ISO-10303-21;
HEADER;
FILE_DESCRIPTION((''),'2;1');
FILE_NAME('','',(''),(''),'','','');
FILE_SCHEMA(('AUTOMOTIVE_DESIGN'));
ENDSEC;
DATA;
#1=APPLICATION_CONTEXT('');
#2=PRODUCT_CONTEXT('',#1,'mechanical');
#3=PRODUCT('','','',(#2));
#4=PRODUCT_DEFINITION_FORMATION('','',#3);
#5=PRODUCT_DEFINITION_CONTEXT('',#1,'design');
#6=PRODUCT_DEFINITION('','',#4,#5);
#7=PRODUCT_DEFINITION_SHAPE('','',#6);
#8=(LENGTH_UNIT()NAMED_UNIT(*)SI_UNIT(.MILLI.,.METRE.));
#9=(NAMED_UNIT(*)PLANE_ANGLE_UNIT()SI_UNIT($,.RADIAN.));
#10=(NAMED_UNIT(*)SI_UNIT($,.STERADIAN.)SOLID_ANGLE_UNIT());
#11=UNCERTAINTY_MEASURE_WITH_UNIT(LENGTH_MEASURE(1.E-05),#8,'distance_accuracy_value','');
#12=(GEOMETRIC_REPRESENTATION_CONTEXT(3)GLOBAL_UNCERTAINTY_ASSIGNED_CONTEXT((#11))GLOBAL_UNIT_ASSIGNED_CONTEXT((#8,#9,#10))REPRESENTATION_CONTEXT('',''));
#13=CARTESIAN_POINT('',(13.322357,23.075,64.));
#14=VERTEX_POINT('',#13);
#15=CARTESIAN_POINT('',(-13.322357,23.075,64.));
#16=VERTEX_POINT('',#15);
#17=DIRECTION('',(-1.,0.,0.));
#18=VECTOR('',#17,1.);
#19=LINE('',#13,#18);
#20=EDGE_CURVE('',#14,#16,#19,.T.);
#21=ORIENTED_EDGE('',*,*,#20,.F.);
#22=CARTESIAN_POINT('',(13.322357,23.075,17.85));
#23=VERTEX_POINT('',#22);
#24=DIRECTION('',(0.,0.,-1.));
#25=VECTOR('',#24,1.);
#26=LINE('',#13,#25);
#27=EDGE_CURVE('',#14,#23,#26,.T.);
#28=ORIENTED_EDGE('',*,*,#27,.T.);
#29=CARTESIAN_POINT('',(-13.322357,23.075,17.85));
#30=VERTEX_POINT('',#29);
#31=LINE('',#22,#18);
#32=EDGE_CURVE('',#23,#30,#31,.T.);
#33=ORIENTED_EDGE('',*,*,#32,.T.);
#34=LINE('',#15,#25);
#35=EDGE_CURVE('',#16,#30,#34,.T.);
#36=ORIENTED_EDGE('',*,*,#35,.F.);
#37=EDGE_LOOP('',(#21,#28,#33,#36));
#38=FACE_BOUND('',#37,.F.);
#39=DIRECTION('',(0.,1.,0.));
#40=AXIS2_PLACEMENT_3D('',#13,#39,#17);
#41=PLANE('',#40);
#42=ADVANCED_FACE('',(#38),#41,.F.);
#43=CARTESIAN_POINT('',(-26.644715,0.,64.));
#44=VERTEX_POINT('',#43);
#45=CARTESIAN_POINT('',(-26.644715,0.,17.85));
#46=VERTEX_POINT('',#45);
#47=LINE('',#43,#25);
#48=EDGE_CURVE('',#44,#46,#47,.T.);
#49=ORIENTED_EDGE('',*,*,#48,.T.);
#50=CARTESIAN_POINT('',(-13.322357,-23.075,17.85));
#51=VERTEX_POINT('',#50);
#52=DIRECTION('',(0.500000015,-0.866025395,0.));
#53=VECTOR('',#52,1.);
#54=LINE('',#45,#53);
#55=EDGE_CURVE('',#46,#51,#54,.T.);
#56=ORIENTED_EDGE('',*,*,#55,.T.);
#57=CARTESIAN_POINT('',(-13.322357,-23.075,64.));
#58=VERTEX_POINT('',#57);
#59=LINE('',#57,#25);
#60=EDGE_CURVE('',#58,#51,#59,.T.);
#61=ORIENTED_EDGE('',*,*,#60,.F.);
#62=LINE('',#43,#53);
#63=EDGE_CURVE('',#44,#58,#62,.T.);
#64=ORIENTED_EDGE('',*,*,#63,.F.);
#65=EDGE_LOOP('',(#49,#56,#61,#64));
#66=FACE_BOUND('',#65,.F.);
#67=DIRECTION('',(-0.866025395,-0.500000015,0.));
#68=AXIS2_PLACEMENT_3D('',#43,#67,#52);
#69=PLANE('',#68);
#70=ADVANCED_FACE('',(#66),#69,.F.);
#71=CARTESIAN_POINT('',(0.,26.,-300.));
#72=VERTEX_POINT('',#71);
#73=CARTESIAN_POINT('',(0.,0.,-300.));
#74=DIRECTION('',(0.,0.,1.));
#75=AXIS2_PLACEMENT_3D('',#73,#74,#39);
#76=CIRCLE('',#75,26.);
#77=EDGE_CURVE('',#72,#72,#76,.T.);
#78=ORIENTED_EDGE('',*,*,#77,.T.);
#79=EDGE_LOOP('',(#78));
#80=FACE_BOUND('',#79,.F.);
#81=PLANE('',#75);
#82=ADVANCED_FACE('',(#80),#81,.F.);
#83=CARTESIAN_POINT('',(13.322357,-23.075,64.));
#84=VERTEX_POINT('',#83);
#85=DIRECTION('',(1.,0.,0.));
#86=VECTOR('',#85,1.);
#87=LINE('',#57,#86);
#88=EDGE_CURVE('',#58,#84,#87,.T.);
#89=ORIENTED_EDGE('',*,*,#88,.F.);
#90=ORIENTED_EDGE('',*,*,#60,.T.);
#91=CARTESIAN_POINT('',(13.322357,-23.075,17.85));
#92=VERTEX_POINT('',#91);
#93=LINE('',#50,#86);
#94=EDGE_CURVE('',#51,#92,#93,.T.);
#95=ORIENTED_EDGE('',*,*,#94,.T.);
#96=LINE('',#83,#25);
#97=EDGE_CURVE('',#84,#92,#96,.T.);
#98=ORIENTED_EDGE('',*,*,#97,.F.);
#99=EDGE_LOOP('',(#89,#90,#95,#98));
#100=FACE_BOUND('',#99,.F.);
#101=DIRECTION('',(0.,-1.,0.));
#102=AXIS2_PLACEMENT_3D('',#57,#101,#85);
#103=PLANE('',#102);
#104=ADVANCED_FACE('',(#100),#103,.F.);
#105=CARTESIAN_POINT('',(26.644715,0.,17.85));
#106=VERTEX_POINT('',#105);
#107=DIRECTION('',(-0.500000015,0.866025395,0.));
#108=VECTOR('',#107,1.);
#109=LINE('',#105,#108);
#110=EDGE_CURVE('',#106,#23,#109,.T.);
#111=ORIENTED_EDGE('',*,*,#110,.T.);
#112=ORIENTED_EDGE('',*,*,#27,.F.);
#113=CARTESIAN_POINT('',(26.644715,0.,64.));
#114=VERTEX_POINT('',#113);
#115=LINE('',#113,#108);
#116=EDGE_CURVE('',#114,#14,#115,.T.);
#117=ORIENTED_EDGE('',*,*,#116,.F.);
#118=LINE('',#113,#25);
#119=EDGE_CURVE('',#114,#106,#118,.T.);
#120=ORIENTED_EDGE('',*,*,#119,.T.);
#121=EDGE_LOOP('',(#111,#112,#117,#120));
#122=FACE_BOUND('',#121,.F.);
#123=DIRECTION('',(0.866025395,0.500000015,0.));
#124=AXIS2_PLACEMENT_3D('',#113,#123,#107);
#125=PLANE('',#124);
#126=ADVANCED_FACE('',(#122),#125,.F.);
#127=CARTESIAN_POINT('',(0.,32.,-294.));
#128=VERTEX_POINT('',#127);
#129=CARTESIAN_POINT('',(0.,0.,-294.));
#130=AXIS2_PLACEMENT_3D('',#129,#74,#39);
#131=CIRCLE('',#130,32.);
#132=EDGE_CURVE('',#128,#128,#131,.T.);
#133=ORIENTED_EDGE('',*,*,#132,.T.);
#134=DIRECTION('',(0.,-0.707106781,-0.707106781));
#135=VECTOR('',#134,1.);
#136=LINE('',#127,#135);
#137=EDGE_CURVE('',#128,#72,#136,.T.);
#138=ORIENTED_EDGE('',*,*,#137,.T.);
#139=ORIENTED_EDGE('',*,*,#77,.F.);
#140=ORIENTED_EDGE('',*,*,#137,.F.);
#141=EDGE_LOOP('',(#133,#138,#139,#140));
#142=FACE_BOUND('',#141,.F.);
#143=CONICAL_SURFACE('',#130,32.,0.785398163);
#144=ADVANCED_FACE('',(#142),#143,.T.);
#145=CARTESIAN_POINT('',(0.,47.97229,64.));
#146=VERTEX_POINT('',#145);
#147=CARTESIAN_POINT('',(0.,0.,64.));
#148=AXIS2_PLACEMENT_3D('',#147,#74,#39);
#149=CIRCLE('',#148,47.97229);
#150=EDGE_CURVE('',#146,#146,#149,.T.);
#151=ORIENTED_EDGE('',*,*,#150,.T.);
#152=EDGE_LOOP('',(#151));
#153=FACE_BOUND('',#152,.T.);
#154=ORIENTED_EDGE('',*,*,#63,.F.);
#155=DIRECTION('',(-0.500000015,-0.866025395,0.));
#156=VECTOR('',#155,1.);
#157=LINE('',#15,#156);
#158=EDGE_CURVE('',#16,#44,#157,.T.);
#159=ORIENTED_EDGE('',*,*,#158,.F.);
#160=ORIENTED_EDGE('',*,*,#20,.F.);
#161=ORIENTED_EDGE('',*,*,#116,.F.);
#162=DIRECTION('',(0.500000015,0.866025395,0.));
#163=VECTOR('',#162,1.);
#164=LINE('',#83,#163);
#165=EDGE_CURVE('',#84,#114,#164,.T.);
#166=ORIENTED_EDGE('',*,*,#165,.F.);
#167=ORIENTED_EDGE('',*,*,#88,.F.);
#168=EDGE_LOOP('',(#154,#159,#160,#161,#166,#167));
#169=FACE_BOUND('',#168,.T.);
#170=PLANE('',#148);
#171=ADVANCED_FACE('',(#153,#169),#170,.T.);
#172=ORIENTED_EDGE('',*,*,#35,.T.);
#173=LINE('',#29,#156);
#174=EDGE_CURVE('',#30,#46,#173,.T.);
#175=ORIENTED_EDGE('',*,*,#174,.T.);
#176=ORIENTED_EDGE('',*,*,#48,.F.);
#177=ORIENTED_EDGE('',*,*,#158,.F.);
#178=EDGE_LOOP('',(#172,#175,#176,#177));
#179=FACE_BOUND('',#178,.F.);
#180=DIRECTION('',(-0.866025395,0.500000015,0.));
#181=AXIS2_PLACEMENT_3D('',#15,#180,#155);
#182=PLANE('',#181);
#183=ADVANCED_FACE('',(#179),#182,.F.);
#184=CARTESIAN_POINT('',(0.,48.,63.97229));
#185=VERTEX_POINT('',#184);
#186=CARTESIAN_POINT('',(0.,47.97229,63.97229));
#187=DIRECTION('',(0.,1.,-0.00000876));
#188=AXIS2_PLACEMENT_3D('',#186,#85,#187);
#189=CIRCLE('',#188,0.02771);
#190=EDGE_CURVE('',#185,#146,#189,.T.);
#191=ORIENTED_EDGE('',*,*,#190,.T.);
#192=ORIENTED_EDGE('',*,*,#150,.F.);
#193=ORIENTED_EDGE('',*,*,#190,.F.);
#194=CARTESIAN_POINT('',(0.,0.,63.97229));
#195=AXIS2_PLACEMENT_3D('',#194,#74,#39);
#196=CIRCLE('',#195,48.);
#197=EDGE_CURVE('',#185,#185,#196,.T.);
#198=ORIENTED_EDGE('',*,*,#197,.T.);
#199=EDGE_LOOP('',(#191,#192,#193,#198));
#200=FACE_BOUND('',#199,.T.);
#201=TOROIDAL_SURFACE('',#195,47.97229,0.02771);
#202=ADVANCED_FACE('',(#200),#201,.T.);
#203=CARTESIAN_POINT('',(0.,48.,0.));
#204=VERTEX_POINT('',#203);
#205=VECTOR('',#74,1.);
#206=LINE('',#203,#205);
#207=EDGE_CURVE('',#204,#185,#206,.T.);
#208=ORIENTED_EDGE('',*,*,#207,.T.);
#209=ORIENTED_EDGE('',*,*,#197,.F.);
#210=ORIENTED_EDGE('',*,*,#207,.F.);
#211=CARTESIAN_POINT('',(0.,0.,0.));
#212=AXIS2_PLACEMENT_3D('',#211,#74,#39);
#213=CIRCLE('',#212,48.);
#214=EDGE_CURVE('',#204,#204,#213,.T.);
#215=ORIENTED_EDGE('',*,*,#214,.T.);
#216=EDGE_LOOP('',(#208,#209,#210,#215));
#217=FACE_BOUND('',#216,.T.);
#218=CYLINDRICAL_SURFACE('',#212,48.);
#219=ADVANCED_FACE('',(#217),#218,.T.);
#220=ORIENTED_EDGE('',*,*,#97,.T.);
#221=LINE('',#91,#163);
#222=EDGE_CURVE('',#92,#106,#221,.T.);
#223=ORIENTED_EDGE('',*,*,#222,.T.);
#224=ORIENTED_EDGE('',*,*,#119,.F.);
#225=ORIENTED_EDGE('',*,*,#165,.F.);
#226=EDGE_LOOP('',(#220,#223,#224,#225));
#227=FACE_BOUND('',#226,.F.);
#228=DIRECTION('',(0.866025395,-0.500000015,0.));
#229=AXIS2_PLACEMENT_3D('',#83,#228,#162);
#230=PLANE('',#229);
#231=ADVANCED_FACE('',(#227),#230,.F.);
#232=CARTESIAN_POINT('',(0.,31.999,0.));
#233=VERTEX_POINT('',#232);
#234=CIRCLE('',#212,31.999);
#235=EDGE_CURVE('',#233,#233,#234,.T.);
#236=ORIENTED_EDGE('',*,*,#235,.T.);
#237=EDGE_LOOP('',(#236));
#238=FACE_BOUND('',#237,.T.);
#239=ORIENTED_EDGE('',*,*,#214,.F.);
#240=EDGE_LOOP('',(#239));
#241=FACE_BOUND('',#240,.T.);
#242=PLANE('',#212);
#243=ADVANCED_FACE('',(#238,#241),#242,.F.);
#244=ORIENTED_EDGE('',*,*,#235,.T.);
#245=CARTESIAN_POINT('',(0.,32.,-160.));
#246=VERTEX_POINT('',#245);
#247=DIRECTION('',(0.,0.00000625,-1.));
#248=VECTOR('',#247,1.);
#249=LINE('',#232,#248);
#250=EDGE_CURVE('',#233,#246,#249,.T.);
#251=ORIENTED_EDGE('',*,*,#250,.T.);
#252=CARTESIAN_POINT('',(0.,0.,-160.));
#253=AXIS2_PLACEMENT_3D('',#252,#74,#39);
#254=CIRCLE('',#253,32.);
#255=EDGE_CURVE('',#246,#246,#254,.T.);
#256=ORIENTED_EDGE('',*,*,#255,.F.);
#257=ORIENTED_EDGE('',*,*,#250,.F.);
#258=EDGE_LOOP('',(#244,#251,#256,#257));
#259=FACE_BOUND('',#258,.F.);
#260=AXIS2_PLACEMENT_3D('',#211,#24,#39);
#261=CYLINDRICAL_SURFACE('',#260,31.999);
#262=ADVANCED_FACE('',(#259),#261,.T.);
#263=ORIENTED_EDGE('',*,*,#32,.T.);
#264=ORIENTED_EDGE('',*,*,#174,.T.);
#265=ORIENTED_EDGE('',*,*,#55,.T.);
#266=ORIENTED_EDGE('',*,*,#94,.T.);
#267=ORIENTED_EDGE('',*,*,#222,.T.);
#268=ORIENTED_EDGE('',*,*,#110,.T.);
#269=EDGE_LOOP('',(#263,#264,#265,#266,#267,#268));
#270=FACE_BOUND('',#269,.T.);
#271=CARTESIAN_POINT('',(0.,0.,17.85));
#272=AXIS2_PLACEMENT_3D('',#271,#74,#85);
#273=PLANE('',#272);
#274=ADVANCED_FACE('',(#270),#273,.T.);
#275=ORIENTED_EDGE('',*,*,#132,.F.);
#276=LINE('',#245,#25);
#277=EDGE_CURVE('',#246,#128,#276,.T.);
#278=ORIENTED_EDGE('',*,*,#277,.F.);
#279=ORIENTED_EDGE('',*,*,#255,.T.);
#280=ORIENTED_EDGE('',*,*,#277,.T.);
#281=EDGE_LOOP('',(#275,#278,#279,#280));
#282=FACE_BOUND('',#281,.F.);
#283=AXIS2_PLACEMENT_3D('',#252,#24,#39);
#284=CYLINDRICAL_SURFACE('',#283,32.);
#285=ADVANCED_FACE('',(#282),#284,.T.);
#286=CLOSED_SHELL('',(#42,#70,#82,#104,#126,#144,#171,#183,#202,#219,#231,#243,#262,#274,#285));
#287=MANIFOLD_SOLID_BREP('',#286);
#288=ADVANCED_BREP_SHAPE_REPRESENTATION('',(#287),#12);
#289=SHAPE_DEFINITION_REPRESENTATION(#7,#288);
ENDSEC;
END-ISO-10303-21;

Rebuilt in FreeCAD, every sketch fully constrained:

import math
import FreeCAD as App
import Part
import Sketcher
Q = App.Units.Quantity


def add_polygon(sketch, points):
    """Adds a closed chain of lines whose ends are joined by coincident constraints."""
    first, n = sketch.GeometryCount, len(points)
    for a, b in zip(points, points[1:] + points[:1]):
        sketch.addGeometry(Part.LineSegment(App.Vector(*a, 0), App.Vector(*b, 0)), False)
    for i in range(n):
        sketch.addConstraint(Sketcher.Constraint("Coincident", first + i, 2, first + (i + 1) % n, 1))

doc = App.newDocument("Part")
body = doc.addObject("PartDesign::Body", "Body")

# Sketch on YZ plane
sketch1 = doc.addObject("Sketcher::SketchObject", "Sketch")
body.addObject(sketch1)
sketch1.AttachmentSupport = (doc.YZ_Plane, [""])
sketch1.MapMode = "FlatFace"
sketch1.addGeometry([
    Part.LineSegment(App.Vector(31.999, 0, 0), App.Vector(48, 0, 0)),  # 0
    Part.LineSegment(App.Vector(48, 0, 0), App.Vector(48, 63.97229, 0)),  # 1
    Part.ArcOfCircle(Part.Circle(App.Vector(47.97229, 63.97229, 0), App.Vector(0, 0, 1), 0.02771), math.radians(-0.000502), math.radians(90.000502)),  # 2
    Part.LineSegment(App.Vector(47.97229, 64, 0), App.Vector(0, 64, 0)),  # 3
    Part.LineSegment(App.Vector(0, 64, 0), App.Vector(0, -300, 0)),  # 4
    Part.LineSegment(App.Vector(0, -300, 0), App.Vector(26, -300, 0)),  # 5
    Part.LineSegment(App.Vector(26, -300, 0), App.Vector(32, -294, 0)),  # 6
    Part.LineSegment(App.Vector(32, -294, 0), App.Vector(32, -160, 0)),  # 7
    Part.LineSegment(App.Vector(32, -160, 0), App.Vector(31.999, 0, 0)),  # 8
], False)
sketch1.addConstraint([
    Sketcher.Constraint("Coincident", 0, 2, 1, 1),
    Sketcher.Constraint("Coincident", 1, 2, 2, 1),
    Sketcher.Constraint("Coincident", 2, 2, 3, 1),
    Sketcher.Constraint("Coincident", 3, 2, 4, 1),
    Sketcher.Constraint("Coincident", 4, 2, 5, 1),
    Sketcher.Constraint("Coincident", 5, 2, 6, 1),
    Sketcher.Constraint("Coincident", 6, 2, 7, 1),
    Sketcher.Constraint("Coincident", 7, 2, 8, 1),
    Sketcher.Constraint("Coincident", 8, 2, 0, 1),
    Sketcher.Constraint("Horizontal", 0),
    Sketcher.Constraint("Vertical", 1),
    Sketcher.Constraint("Horizontal", 3),
    Sketcher.Constraint("Vertical", 4),
    Sketcher.Constraint("Horizontal", 5),
    Sketcher.Constraint("Vertical", 7),
    Sketcher.Constraint("PointOnObject", 0, 2, -1),
    Sketcher.Constraint("PointOnObject", 3, 2, -2),
    Sketcher.Constraint("Horizontal", 2, 3, 1, 2),
    Sketcher.Constraint("DistanceX", 5, 1, 5, 2, 26.0),
    Sketcher.Constraint("DistanceY", 4, 2, 4, 1, 364.0),
    Sketcher.Constraint("DistanceY", 7, 1, 7, 2, 134.0),
    Sketcher.Constraint("Angle", 6, Q("45 deg")),
    Sketcher.Constraint("Distance", 8, 160.0),
    Sketcher.Constraint("DistanceX", -1, 1, 0, 2, 48.0),
    Sketcher.Constraint("DistanceY", -1, 1, 2, 2, 64.0),
    Sketcher.Constraint("DistanceX", 0, 1, 0, 2, 16.001),
    Sketcher.Constraint("Radius", 2, 0.02771),
    Sketcher.Constraint("DistanceX", 3, 2, 3, 1, 47.97229),
])
revolution = doc.addObject("PartDesign::Revolution", "Revolution")
body.addObject(revolution)
revolution.Profile = sketch1
revolution.ReferenceAxis = (sketch1, ["V_Axis"])
revolution.Angle = 360

# Sketch on XY plane
sketch2 = doc.addObject("Sketcher::SketchObject", "Sketch001")
body.addObject(sketch2)
sketch2.AttachmentSupport = (doc.XY_Plane, [""])
sketch2.MapMode = "FlatFace"
sketch2.AttachmentOffset = App.Placement(App.Vector(0, 0, 64), App.Rotation())
add_polygon(sketch2, [(26.644715, 0), (13.322357, 23.075), (-13.322357, 23.075), (-26.644715, 0), (-13.322357, -23.075), (13.322357, -23.075)])  # lines 0-5
sketch2.addConstraint([
    Sketcher.Constraint("Horizontal", 1),
    Sketcher.Constraint("Horizontal", 4),
    Sketcher.Constraint("Symmetric", 0, 2, 3, 2, -1, 1),
    Sketcher.Constraint("Symmetric", 2, 2, 5, 2, -1, 1),
    Sketcher.Constraint("PointOnObject", 2, 2, -1),
    Sketcher.Constraint("Parallel", 2, 5),
    Sketcher.Constraint("Vertical", 1, 2, 3, 2),
    Sketcher.Constraint("Angle", 0, Q("120.000001 deg")),
    Sketcher.Constraint("DistanceY", 3, 2, 1, 2, 46.15),
    Sketcher.Constraint("DistanceX", 1, 2, 1, 1, 26.644714),
])
pocket1 = doc.addObject("PartDesign::Pocket", "Pocket")
body.addObject(pocket1)
pocket1.Profile = sketch2
pocket1.Length = 46.15

doc.recompute()
